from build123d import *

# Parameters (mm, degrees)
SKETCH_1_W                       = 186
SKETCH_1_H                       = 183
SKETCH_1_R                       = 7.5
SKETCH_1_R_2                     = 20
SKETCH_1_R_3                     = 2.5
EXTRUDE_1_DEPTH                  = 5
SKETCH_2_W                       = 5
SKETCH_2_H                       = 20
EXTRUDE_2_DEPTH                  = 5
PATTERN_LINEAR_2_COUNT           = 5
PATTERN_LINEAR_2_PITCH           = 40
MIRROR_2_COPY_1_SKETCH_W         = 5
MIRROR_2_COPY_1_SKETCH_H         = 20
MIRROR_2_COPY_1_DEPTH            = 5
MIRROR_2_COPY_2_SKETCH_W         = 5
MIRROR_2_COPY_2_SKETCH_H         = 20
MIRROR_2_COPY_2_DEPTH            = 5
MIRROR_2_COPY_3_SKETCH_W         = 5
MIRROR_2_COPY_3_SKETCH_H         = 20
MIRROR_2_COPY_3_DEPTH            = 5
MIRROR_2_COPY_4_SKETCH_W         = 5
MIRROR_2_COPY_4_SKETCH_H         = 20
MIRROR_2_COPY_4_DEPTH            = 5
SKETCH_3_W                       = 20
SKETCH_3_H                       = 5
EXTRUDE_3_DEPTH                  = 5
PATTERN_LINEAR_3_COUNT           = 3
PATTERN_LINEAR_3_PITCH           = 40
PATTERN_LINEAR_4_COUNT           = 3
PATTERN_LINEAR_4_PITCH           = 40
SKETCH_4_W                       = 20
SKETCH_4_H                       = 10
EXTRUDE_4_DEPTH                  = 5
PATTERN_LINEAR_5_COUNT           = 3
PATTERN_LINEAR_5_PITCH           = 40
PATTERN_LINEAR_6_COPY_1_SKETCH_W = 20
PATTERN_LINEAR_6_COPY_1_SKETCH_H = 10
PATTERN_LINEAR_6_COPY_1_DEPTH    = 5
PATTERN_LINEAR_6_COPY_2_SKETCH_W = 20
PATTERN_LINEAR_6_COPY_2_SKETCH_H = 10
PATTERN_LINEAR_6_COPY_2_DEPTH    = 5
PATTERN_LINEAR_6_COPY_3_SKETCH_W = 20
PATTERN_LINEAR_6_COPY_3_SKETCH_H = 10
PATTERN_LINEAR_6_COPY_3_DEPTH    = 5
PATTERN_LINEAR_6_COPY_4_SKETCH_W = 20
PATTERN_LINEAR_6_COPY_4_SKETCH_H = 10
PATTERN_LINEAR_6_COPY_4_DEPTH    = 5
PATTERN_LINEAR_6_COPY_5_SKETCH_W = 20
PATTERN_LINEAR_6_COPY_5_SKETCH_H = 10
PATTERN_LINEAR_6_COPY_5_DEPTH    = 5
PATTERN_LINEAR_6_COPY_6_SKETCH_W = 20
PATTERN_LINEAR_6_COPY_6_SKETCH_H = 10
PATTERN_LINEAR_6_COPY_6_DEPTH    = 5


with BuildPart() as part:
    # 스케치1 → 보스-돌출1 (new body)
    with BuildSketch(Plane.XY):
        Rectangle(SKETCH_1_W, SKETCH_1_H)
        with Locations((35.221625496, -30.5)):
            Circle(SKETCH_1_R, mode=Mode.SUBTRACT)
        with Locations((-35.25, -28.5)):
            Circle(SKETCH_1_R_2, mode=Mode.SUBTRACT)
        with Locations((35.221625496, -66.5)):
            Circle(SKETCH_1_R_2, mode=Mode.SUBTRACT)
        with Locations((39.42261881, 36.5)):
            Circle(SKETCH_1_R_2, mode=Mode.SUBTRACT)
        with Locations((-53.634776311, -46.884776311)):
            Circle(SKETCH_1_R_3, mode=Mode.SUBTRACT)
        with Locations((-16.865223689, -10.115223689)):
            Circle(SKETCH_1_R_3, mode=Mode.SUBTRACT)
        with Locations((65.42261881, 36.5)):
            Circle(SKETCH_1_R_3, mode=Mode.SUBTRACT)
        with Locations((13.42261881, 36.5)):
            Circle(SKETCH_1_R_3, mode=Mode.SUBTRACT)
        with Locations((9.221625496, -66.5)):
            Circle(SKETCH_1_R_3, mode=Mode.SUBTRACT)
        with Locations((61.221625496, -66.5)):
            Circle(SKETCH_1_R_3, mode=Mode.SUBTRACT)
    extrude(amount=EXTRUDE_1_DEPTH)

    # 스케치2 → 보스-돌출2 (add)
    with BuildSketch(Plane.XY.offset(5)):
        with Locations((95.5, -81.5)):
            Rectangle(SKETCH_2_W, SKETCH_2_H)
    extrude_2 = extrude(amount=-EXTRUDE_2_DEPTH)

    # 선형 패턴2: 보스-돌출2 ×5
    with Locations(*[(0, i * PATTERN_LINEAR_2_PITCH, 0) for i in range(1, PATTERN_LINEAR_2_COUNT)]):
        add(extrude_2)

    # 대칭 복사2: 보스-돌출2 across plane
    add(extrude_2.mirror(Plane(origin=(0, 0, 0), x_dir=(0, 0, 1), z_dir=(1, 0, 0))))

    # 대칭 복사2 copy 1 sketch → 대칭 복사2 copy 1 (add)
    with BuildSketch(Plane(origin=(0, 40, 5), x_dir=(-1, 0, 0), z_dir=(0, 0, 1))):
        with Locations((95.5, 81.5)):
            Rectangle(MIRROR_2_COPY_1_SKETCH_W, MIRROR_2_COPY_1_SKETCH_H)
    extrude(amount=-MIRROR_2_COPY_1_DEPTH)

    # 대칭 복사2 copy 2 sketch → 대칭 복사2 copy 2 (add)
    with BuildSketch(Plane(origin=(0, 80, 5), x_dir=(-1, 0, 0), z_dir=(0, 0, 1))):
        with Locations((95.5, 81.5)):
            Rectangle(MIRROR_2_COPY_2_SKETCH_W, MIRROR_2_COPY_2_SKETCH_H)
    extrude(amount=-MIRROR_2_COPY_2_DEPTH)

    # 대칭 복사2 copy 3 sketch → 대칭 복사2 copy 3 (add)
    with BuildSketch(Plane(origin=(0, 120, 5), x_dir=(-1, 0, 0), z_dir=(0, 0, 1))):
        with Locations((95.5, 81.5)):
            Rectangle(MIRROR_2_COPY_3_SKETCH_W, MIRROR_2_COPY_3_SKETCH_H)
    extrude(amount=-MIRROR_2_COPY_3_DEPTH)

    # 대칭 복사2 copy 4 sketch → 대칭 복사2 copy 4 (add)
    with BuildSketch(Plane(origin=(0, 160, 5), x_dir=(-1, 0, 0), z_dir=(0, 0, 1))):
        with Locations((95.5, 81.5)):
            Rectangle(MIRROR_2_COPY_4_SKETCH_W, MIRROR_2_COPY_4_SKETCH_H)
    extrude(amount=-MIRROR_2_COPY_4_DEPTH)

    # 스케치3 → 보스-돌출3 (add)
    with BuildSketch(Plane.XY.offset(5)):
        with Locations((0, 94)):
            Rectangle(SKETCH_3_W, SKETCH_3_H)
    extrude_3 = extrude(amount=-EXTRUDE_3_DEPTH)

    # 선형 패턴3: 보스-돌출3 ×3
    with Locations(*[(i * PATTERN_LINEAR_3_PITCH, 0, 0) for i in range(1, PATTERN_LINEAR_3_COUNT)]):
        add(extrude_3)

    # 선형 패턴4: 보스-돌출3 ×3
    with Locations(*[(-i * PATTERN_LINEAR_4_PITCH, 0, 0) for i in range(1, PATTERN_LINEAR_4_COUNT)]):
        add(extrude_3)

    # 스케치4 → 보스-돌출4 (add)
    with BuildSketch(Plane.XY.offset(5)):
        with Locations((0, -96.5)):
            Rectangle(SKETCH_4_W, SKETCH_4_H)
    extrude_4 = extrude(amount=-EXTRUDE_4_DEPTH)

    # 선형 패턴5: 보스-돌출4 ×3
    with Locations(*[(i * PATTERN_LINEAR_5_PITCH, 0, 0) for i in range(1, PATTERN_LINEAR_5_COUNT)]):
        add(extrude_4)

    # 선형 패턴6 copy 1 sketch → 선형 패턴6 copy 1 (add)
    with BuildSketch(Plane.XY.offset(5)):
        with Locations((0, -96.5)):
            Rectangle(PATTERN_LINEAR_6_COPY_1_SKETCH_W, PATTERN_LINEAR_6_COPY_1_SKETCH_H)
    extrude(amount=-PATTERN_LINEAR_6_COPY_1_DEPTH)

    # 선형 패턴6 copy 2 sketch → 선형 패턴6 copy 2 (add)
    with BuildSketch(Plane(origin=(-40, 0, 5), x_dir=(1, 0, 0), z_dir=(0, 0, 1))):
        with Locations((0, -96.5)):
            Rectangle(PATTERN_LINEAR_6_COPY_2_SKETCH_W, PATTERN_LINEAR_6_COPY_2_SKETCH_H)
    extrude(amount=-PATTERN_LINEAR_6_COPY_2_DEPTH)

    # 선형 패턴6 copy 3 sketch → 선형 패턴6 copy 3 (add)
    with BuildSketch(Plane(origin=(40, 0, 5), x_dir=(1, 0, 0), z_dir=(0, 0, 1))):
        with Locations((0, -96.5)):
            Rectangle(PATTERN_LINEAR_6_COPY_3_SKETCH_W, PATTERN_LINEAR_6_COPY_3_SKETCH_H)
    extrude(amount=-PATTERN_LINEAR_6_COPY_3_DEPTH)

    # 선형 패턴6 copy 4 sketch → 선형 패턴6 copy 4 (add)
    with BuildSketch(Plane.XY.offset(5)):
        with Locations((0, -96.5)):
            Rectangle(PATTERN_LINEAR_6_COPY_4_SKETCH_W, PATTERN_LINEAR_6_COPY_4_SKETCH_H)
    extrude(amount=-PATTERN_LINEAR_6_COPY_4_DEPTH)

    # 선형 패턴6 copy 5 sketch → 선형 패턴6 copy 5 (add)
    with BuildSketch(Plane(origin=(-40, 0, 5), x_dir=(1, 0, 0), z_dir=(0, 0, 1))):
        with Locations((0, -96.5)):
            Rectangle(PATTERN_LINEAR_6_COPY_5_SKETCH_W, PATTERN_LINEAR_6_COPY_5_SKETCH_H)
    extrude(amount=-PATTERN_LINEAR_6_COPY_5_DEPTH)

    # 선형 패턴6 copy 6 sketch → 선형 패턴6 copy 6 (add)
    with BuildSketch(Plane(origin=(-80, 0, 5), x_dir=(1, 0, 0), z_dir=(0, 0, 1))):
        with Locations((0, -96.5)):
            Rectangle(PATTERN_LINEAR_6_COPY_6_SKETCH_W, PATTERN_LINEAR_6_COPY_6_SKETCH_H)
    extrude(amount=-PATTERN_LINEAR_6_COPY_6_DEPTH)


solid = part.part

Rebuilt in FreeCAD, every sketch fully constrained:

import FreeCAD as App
import Part
import Sketcher

doc = App.newDocument("Part")
body = doc.addObject("PartDesign::Body", "Body")

sketch1 = body.newObject("Sketcher::SketchObject", "Sketch")
sketch1.AttachmentSupport = (doc.getObject("XY_Plane"), [""])
sketch1.MapMode = "FlatFace"
sketch1.addGeometry([
    Part.LineSegment(App.Vector(-93, 91.5, 0), App.Vector(-93, -91.5, 0)),
    Part.LineSegment(App.Vector(-93, -91.5, 0), App.Vector(93, -91.5, 0)),
    Part.LineSegment(App.Vector(93, -91.5, 0), App.Vector(93, 91.5, 0)),
    Part.LineSegment(App.Vector(93, 91.5, 0), App.Vector(-93, 91.5, 0)),
    Part.Circle(App.Vector(-53.6, -46.9, 0), App.Vector(0, 0, 1), 2.5),
    Part.Circle(App.Vector(-35.2, -28.5, 0), App.Vector(0, 0, 1), 20),
    Part.Circle(App.Vector(9.2, -66.5, 0), App.Vector(0, 0, 1), 2.5),
    Part.Circle(App.Vector(35.2, -66.5, 0), App.Vector(0, 0, 1), 20),
    Part.Circle(App.Vector(61.2, -66.5, 0), App.Vector(0, 0, 1), 2.5),
    Part.Circle(App.Vector(35.2, -30.5, 0), App.Vector(0, 0, 1), 7.5),
    Part.Circle(App.Vector(-16.9, -10.1, 0), App.Vector(0, 0, 1), 2.5),
    Part.Circle(App.Vector(13.4, 36.5, 0), App.Vector(0, 0, 1), 2.5),
    Part.Circle(App.Vector(39.4, 36.5, 0), App.Vector(0, 0, 1), 20),
    Part.Circle(App.Vector(65.4, 36.5, 0), App.Vector(0, 0, 1), 2.5),
], False)
sketch1.addConstraint([
    Sketcher.Constraint("Coincident", 0, 2, 1, 1),
    Sketcher.Constraint("Coincident", 1, 2, 2, 1),
    Sketcher.Constraint("Coincident", 2, 2, 3, 1),
    Sketcher.Constraint("Coincident", 3, 2, 0, 1),
    Sketcher.Constraint("Vertical", 0),
    Sketcher.Constraint("Horizontal", 1),
    Sketcher.Constraint("Vertical", 2),
    Sketcher.Constraint("Horizontal", 3),
    Sketcher.Constraint("Equal", 4, 6),
    Sketcher.Constraint("Equal", 5, 7),
    Sketcher.Constraint("Equal", 6, 8),
    Sketcher.Constraint("Equal", 8, 10),
    Sketcher.Constraint("Equal", 10, 11),
    Sketcher.Constraint("Equal", 7, 12),
    Sketcher.Constraint("Equal", 11, 13),
    Sketcher.Constraint("Symmetric", 0, 2, 2, 2, -1, 1),
    Sketcher.Constraint("Horizontal", 6, 3, 7, 3),
    Sketcher.Constraint("Horizontal", 7, 3, 8, 3),
    Sketcher.Constraint("Horizontal", 11, 3, 12, 3),
    Sketcher.Constraint("Horizontal", 12, 3, 13, 3),
    Sketcher.Constraint("Vertical", 7, 3, 9, 3),
    Sketcher.Constraint("Diameter", 4, 5.0),
    Sketcher.Constraint("Diameter", 5, 40.0),
    Sketcher.Constraint("Diameter", 9, 15.0),
    Sketcher.Constraint("DistanceX", 1, 1, 1, 2, 186.0),
    Sketcher.Constraint("DistanceY", 0, 2, 0, 1, 183.0),
    Sketcher.Constraint("DistanceY", 6, 3, 5, 3, 38.0),
    Sketcher.Constraint("DistanceX", 6, 3, 7, 3, 26.0),
    Sketcher.Constraint("DistanceX", 7, 3, 8, 3, 26.0),
    Sketcher.Constraint("DistanceY", 7, 3, 9, 3, 36.0),
    Sketcher.Constraint("DistanceY", 9, 3, 11, 3, 67.0),
    Sketcher.Constraint("DistanceX", 11, 3, 12, 3, 26.0),
    Sketcher.Constraint("DistanceX", 12, 3, 13, 3, 26.0),
    Sketcher.Constraint("DistanceY", 0, 2, 5, 3, 63.0),
    Sketcher.Constraint("DistanceX", 5, 3, -1, 1, 35.25),
    Sketcher.Constraint("DistanceX", 4, 3, 6, 3, 62.856402),
    Sketcher.Constraint("DistanceX", -1, 1, 11, 3, 13.422619),
    Sketcher.Constraint("DistanceX", 10, 3, 9, 3, 52.086849),
    Sketcher.Constraint("DistanceX", 4, 3, -1, 1, 53.634776),
    Sketcher.Constraint("DistanceY", 4, 3, -1, 1, 46.884776),
    Sketcher.Constraint("DistanceY", 10, 3, -1, 1, 10.115224),
])
pad1 = body.newObject("PartDesign::Pad", "Pad")
pad1.Profile = sketch1
pad1.Length = 5

sketch2 = body.newObject("Sketcher::SketchObject", "Sketch001")
sketch2.AttachmentSupport = (doc.getObject("XY_Plane"), [""])
sketch2.MapMode = "FlatFace"
sketch2.AttachmentOffset = App.Placement(App.Vector(0, 0, 5), App.Rotation())
sketch2.addGeometry([
    Part.LineSegment(App.Vector(93, -72, 0), App.Vector(93, -92, 0)),
    Part.LineSegment(App.Vector(93, -92, 0), App.Vector(98, -92, 0)),
    Part.LineSegment(App.Vector(98, -92, 0), App.Vector(98, -72, 0)),
    Part.LineSegment(App.Vector(98, -72, 0), App.Vector(93, -72, 0)),
], False)
sketch2.addConstraint([
    Sketcher.Constraint("Coincident", 0, 2, 1, 1),
    Sketcher.Constraint("Coincident", 1, 2, 2, 1),
    Sketcher.Constraint("Coincident", 2, 2, 3, 1),
    Sketcher.Constraint("Coincident", 3, 2, 0, 1),
    Sketcher.Constraint("Vertical", 0),
    Sketcher.Constraint("Horizontal", 1),
    Sketcher.Constraint("Vertical", 2),
    Sketcher.Constraint("Horizontal", 3),
    Sketcher.Constraint("DistanceX", 1, 1, 1, 2, 5.0),
    Sketcher.Constraint("DistanceY", 0, 2, 0, 1, 20.0),
    Sketcher.Constraint("DistanceX", -1, 1, 0, 2, 93.0),
    Sketcher.Constraint("DistanceY", 0, 2, -1, 1, 91.5),
])
pad2 = body.newObject("PartDesign::Pad", "Pad001")
pad2.Profile = sketch2
pad2.Length = 5
pad2.Reversed = True
doc.recompute()

linearpattern = body.newObject("PartDesign::LinearPattern", "LinearPattern")
linearpattern.Originals = [pad2]
linearpattern.Direction = (doc.getObject("Y_Axis"), [""])
linearpattern.Mode = "offset"
linearpattern.Offset = 40
linearpattern.Occurrences = 5
body.Tip = linearpattern
doc.recompute()

mirrored = body.newObject("PartDesign::Mirrored", "Mirrored")
mirrored.Originals = [pad2]
mirrored.MirrorPlane = (doc.getObject("YZ_Plane"), [""])
body.Tip = mirrored

sketch3 = body.newObject("Sketcher::SketchObject", "Sketch002")
sketch3.AttachmentSupport = (doc.getObject("XY_Plane"), [""])
sketch3.MapMode = "FlatFace"
sketch3.AttachmentOffset = App.Placement(App.Vector(0, 0, 5), App.Rotation())
sketch3.addGeometry([
    Part.LineSegment(App.Vector(-93, -52, 0), App.Vector(-93, -32, 0)),
    Part.LineSegment(App.Vector(-93, -32, 0), App.Vector(-98, -32, 0)),
    Part.LineSegment(App.Vector(-98, -32, 0), App.Vector(-98, -52, 0)),
    Part.LineSegment(App.Vector(-98, -52, 0), App.Vector(-93, -52, 0)),
], False)
sketch3.addConstraint([
    Sketcher.Constraint("Coincident", 0, 2, 1, 1),
    Sketcher.Constraint("Coincident", 1, 2, 2, 1),
    Sketcher.Constraint("Coincident", 2, 2, 3, 1),
    Sketcher.Constraint("Coincident", 3, 2, 0, 1),
    Sketcher.Constraint("Vertical", 0),
    Sketcher.Constraint("Horizontal", 1),
    Sketcher.Constraint("Vertical", 2),
    Sketcher.Constraint("Horizontal", 3),
    Sketcher.Constraint("DistanceX", 1, 2, 1, 1, 5.0),
    Sketcher.Constraint("DistanceY", 0, 1, 0, 2, 20.0),
    Sketcher.Constraint("DistanceX", 0, 2, -1, 1, 93.0),
    Sketcher.Constraint("DistanceY", 0, 2, -1, 1, 31.5),
])
pad3 = body.newObject("PartDesign::Pad", "Pad002")
pad3.Profile = sketch3
pad3.Length = 5
pad3.Reversed = True

sketch4 = body.newObject("Sketcher::SketchObject", "Sketch003")
sketch4.AttachmentSupport = (doc.getObject("XY_Plane"), [""])
sketch4.MapMode = "FlatFace"
sketch4.AttachmentOffset = App.Placement(App.Vector(0, 0, 5), App.Rotation())
sketch4.addGeometry([
    Part.LineSegment(App.Vector(-93, -12, 0), App.Vector(-93, 8, 0)),
    Part.LineSegment(App.Vector(-93, 8, 0), App.Vector(-98, 8, 0)),
    Part.LineSegment(App.Vector(-98, 8, 0), App.Vector(-98, -12, 0)),
    Part.LineSegment(App.Vector(-98, -12, 0), App.Vector(-93, -12, 0)),
], False)
sketch4.addConstraint([
    Sketcher.Constraint("Coincident", 0, 2, 1, 1),
    Sketcher.Constraint("Coincident", 1, 2, 2, 1),
    Sketcher.Constraint("Coincident", 2, 2, 3, 1),
    Sketcher.Constraint("Coincident", 3, 2, 0, 1),
    Sketcher.Constraint("Vertical", 0),
    Sketcher.Constraint("Horizontal", 1),
    Sketcher.Constraint("Vertical", 2),
    Sketcher.Constraint("Horizontal", 3),
    Sketcher.Constraint("DistanceX", 1, 2, 1, 1, 5.0),
    Sketcher.Constraint("DistanceY", 0, 1, 0, 2, 20.0),
    Sketcher.Constraint("DistanceX", 0, 2, -1, 1, 93.0),
    Sketcher.Constraint("DistanceY", -1, 1, 0, 2, 8.5),
])
pad4 = body.newObject("PartDesign::Pad", "Pad003")
pad4.Profile = sketch4
pad4.Length = 5
pad4.Reversed = True

sketch5 = body.newObject("Sketcher::SketchObject", "Sketch004")
sketch5.AttachmentSupport = (doc.getObject("XY_Plane"), [""])
sketch5.MapMode = "FlatFace"
sketch5.AttachmentOffset = App.Placement(App.Vector(0, 0, 5), App.Rotation())
sketch5.addGeometry([
    Part.LineSegment(App.Vector(-93, 28, 0), App.Vector(-93, 48, 0)),
    Part.LineSegment(App.Vector(-93, 48, 0), App.Vector(-98, 48, 0)),
    Part.LineSegment(App.Vector(-98, 48, 0), App.Vector(-98, 28, 0)),
    Part.LineSegment(App.Vector(-98, 28, 0), App.Vector(-93, 28, 0)),
], False)
sketch5.addConstraint([
    Sketcher.Constraint("Coincident", 0, 2, 1, 1),
    Sketcher.Constraint("Coincident", 1, 2, 2, 1),
    Sketcher.Constraint("Coincident", 2, 2, 3, 1),
    Sketcher.Constraint("Coincident", 3, 2, 0, 1),
    Sketcher.Constraint("Vertical", 0),
    Sketcher.Constraint("Horizontal", 1),
    Sketcher.Constraint("Vertical", 2),
    Sketcher.Constraint("Horizontal", 3),
    Sketcher.Constraint("DistanceX", 1, 2, 1, 1, 5.0),
    Sketcher.Constraint("DistanceY", 0, 1, 0, 2, 20.0),
    Sketcher.Constraint("DistanceX", 0, 2, -1, 1, 93.0),
    Sketcher.Constraint("DistanceY", -1, 1, 0, 2, 48.5),
])
pad5 = body.newObject("PartDesign::Pad", "Pad004")
pad5.Profile = sketch5
pad5.Length = 5
pad5.Reversed = True

sketch6 = body.newObject("Sketcher::SketchObject", "Sketch005")
sketch6.AttachmentSupport = (doc.getObject("XY_Plane"), [""])
sketch6.MapMode = "FlatFace"
sketch6.AttachmentOffset = App.Placement(App.Vector(0, 0, 5), App.Rotation())
sketch6.addGeometry([
    Part.LineSegment(App.Vector(-93, 68, 0), App.Vector(-93, 88, 0)),
    Part.LineSegment(App.Vector(-93, 88, 0), App.Vector(-98, 88, 0)),
    Part.LineSegment(App.Vector(-98, 88, 0), App.Vector(-98, 68, 0)),
    Part.LineSegment(App.Vector(-98, 68, 0), App.Vector(-93, 68, 0)),
], False)
sketch6.addConstraint([
    Sketcher.Constraint("Coincident", 0, 2, 1, 1),
    Sketcher.Constraint("Coincident", 1, 2, 2, 1),
    Sketcher.Constraint("Coincident", 2, 2, 3, 1),
    Sketcher.Constraint("Coincident", 3, 2, 0, 1),
    Sketcher.Constraint("Vertical", 0),
    Sketcher.Constraint("Horizontal", 1),
    Sketcher.Constraint("Vertical", 2),
    Sketcher.Constraint("Horizontal", 3),
    Sketcher.Constraint("DistanceX", 1, 2, 1, 1, 5.0),
    Sketcher.Constraint("DistanceY", 0, 1, 0, 2, 20.0),
    Sketcher.Constraint("DistanceX", 0, 2, -1, 1, 93.0),
    Sketcher.Constraint("DistanceY", -1, 1, 0, 2, 88.5),
])
pad6 = body.newObject("PartDesign::Pad", "Pad005")
pad6.Profile = sketch6
pad6.Length = 5
pad6.Reversed = True

sketch7 = body.newObject("Sketcher::SketchObject", "Sketch006")
sketch7.AttachmentSupport = (doc.getObject("XY_Plane"), [""])
sketch7.MapMode = "FlatFace"
sketch7.AttachmentOffset = App.Placement(App.Vector(0, 0, 5), App.Rotation())
sketch7.addGeometry([
    Part.LineSegment(App.Vector(-10, 96, 0), App.Vector(-10, 92, 0)),
    Part.LineSegment(App.Vector(-10, 92, 0), App.Vector(10, 92, 0)),
    Part.LineSegment(App.Vector(10, 92, 0), App.Vector(10, 96, 0)),
    Part.LineSegment(App.Vector(10, 96, 0), App.Vector(-10, 96, 0)),
], False)
sketch7.addConstraint([
    Sketcher.Constraint("Coincident", 0, 2, 1, 1),
    Sketcher.Constraint("Coincident", 1, 2, 2, 1),
    Sketcher.Constraint("Coincident", 2, 2, 3, 1),
    Sketcher.Constraint("Coincident", 3, 2, 0, 1),
    Sketcher.Constraint("Vertical", 0),
    Sketcher.Constraint("Horizontal", 1),
    Sketcher.Constraint("Vertical", 2),
    Sketcher.Constraint("Horizontal", 3),
    Sketcher.Constraint("DistanceX", 1, 1, 1, 2, 20.0),
    Sketcher.Constraint("DistanceY", 0, 2, 0, 1, 5.0),
    Sketcher.Constraint("DistanceX", 0, 2, -1, 1, 10.0),
    Sketcher.Constraint("DistanceY", -1, 1, 0, 2, 91.5),
])
pad7 = body.newObject("PartDesign::Pad", "Pad006")
pad7.Profile = sketch7
pad7.Length = 5
pad7.Reversed = True
doc.recompute()

linearpattern2 = body.newObject("PartDesign::LinearPattern", "LinearPattern001")
linearpattern2.Originals = [pad7]
linearpattern2.Direction = (doc.getObject("X_Axis"), [""])
linearpattern2.Mode = "offset"
linearpattern2.Offset = 40
linearpattern2.Occurrences = 3
body.Tip = linearpattern2
doc.recompute()

linearpattern3 = body.newObject("PartDesign::LinearPattern", "LinearPattern002")
linearpattern3.Originals = [pad7]
linearpattern3.Direction = (doc.getObject("X_Axis"), [""])
linearpattern3.Mode = "offset"
linearpattern3.Offset = 40
linearpattern3.Occurrences = 3
linearpattern3.Reversed = True
body.Tip = linearpattern3

sketch8 = body.newObject("Sketcher::SketchObject", "Sketch007")
sketch8.AttachmentSupport = (doc.getObject("XY_Plane"), [""])
sketch8.MapMode = "FlatFace"
sketch8.AttachmentOffset = App.Placement(App.Vector(0, 0, 5), App.Rotation())
sketch8.addGeometry([
    Part.LineSegment(App.Vector(-10, -92, 0), App.Vector(-10, -102, 0)),
    Part.LineSegment(App.Vector(-10, -102, 0), App.Vector(10, -102, 0)),
    Part.LineSegment(App.Vector(10, -102, 0), App.Vector(10, -92, 0)),
    Part.LineSegment(App.Vector(10, -92, 0), App.Vector(-10, -92, 0)),
], False)
sketch8.addConstraint([
    Sketcher.Constraint("Coincident", 0, 2, 1, 1),
    Sketcher.Constraint("Coincident", 1, 2, 2, 1),
    Sketcher.Constraint("Coincident", 2, 2, 3, 1),
    Sketcher.Constraint("Coincident", 3, 2, 0, 1),
    Sketcher.Constraint("Vertical", 0),
    Sketcher.Constraint("Horizontal", 1),
    Sketcher.Constraint("Vertical", 2),
    Sketcher.Constraint("Horizontal", 3),
    Sketcher.Constraint("DistanceX", 1, 1, 1, 2, 20.0),
    Sketcher.Constraint("DistanceY", 0, 2, 0, 1, 10.0),
    Sketcher.Constraint("DistanceX", 0, 2, -1, 1, 10.0),
    Sketcher.Constraint("DistanceY", 0, 2, -1, 1, 101.5),
])
pad8 = body.newObject("PartDesign::Pad", "Pad007")
pad8.Profile = sketch8
pad8.Length = 5
pad8.Reversed = True
doc.recompute()

linearpattern4 = body.newObject("PartDesign::LinearPattern", "LinearPattern003")
linearpattern4.Originals = [pad8]
linearpattern4.Direction = (doc.getObject("X_Axis"), [""])
linearpattern4.Mode = "offset"
linearpattern4.Offset = 40
linearpattern4.Occurrences = 3
body.Tip = linearpattern4

sketch9 = body.newObject("Sketcher::SketchObject", "Sketch008")
sketch9.AttachmentSupport = (doc.getObject("XY_Plane"), [""])
sketch9.MapMode = "FlatFace"
sketch9.AttachmentOffset = App.Placement(App.Vector(0, 0, 5), App.Rotation())
sketch9.addGeometry([
    Part.LineSegment(App.Vector(-10, -92, 0), App.Vector(-10, -102, 0)),
    Part.LineSegment(App.Vector(-10, -102, 0), App.Vector(10, -102, 0)),
    Part.LineSegment(App.Vector(10, -102, 0), App.Vector(10, -92, 0)),
    Part.LineSegment(App.Vector(10, -92, 0), App.Vector(-10, -92, 0)),
], False)
sketch9.addConstraint([
    Sketcher.Constraint("Coincident", 0, 2, 1, 1),
    Sketcher.Constraint("Coincident", 1, 2, 2, 1),
    Sketcher.Constraint("Coincident", 2, 2, 3, 1),
    Sketcher.Constraint("Coincident", 3, 2, 0, 1),
    Sketcher.Constraint("Vertical", 0),
    Sketcher.Constraint("Horizontal", 1),
    Sketcher.Constraint("Vertical", 2),
    Sketcher.Constraint("Horizontal", 3),
    Sketcher.Constraint("DistanceX", 1, 1, 1, 2, 20.0),
    Sketcher.Constraint("DistanceY", 0, 2, 0, 1, 10.0),
    Sketcher.Constraint("DistanceX", 0, 2, -1, 1, 10.0),
    Sketcher.Constraint("DistanceY", 0, 2, -1, 1, 101.5),
])
pad9 = body.newObject("PartDesign::Pad", "Pad008")
pad9.Profile = sketch9
pad9.Length = 5
pad9.Reversed = True

sketch10 = body.newObject("Sketcher::SketchObject", "Sketch009")
sketch10.AttachmentSupport = (doc.getObject("XY_Plane"), [""])
sketch10.MapMode = "FlatFace"
sketch10.AttachmentOffset = App.Placement(App.Vector(0, 0, 5), App.Rotation())
sketch10.addGeometry([
    Part.LineSegment(App.Vector(-50, -92, 0), App.Vector(-50, -102, 0)),
    Part.LineSegment(App.Vector(-50, -102, 0), App.Vector(-30, -102, 0)),
    Part.LineSegment(App.Vector(-30, -102, 0), App.Vector(-30, -92, 0)),
    Part.LineSegment(App.Vector(-30, -92, 0), App.Vector(-50, -92, 0)),
], False)
sketch10.addConstraint([
    Sketcher.Constraint("Coincident", 0, 2, 1, 1),
    Sketcher.Constraint("Coincident", 1, 2, 2, 1),
    Sketcher.Constraint("Coincident", 2, 2, 3, 1),
    Sketcher.Constraint("Coincident", 3, 2, 0, 1),
    Sketcher.Constraint("Vertical", 0),
    Sketcher.Constraint("Horizontal", 1),
    Sketcher.Constraint("Vertical", 2),
    Sketcher.Constraint("Horizontal", 3),
    Sketcher.Constraint("DistanceX", 1, 1, 1, 2, 20.0),
    Sketcher.Constraint("DistanceY", 0, 2, 0, 1, 10.0),
    Sketcher.Constraint("DistanceX", 0, 2, -1, 1, 50.0),
    Sketcher.Constraint("DistanceY", 0, 2, -1, 1, 101.5),
])
pad10 = body.newObject("PartDesign::Pad", "Pad009")
pad10.Profile = sketch10
pad10.Length = 5
pad10.Reversed = True

sketch11 = body.newObject("Sketcher::SketchObject", "Sketch010")
sketch11.AttachmentSupport = (doc.getObject("XY_Plane"), [""])
sketch11.MapMode = "FlatFace"
sketch11.AttachmentOffset = App.Placement(App.Vector(0, 0, 5), App.Rotation())
sketch11.addGeometry([
    Part.LineSegment(App.Vector(30, -92, 0), App.Vector(30, -102, 0)),
    Part.LineSegment(App.Vector(30, -102, 0), App.Vector(50, -102, 0)),
    Part.LineSegment(App.Vector(50, -102, 0), App.Vector(50, -92, 0)),
    Part.LineSegment(App.Vector(50, -92, 0), App.Vector(30, -92, 0)),
], False)
sketch11.addConstraint([
    Sketcher.Constraint("Coincident", 0, 2, 1, 1),
    Sketcher.Constraint("Coincident", 1, 2, 2, 1),
    Sketcher.Constraint("Coincident", 2, 2, 3, 1),
    Sketcher.Constraint("Coincident", 3, 2, 0, 1),
    Sketcher.Constraint("Vertical", 0),
    Sketcher.Constraint("Horizontal", 1),
    Sketcher.Constraint("Vertical", 2),
    Sketcher.Constraint("Horizontal", 3),
    Sketcher.Constraint("DistanceX", 1, 1, 1, 2, 20.0),
    Sketcher.Constraint("DistanceY", 0, 2, 0, 1, 10.0),
    Sketcher.Constraint("DistanceX", -1, 1, 0, 2, 30.0),
    Sketcher.Constraint("DistanceY", 0, 2, -1, 1, 101.5),
])
pad11 = body.newObject("PartDesign::Pad", "Pad010")
pad11.Profile = sketch11
pad11.Length = 5
pad11.Reversed = True

sketch12 = body.newObject("Sketcher::SketchObject", "Sketch011")
sketch12.AttachmentSupport = (doc.getObject("XY_Plane"), [""])
sketch12.MapMode = "FlatFace"
sketch12.AttachmentOffset = App.Placement(App.Vector(0, 0, 5), App.Rotation())
sketch12.addGeometry([
    Part.LineSegment(App.Vector(-10, -92, 0), App.Vector(-10, -102, 0)),
    Part.LineSegment(App.Vector(-10, -102, 0), App.Vector(10, -102, 0)),
    Part.LineSegment(App.Vector(10, -102, 0), App.Vector(10, -92, 0)),
    Part.LineSegment(App.Vector(10, -92, 0), App.Vector(-10, -92, 0)),
], False)
sketch12.addConstraint([
    Sketcher.Constraint("Coincident", 0, 2, 1, 1),
    Sketcher.Constraint("Coincident", 1, 2, 2, 1),
    Sketcher.Constraint("Coincident", 2, 2, 3, 1),
    Sketcher.Constraint("Coincident", 3, 2, 0, 1),
    Sketcher.Constraint("Vertical", 0),
    Sketcher.Constraint("Horizontal", 1),
    Sketcher.Constraint("Vertical", 2),
    Sketcher.Constraint("Horizontal", 3),
    Sketcher.Constraint("DistanceX", 1, 1, 1, 2, 20.0),
    Sketcher.Constraint("DistanceY", 0, 2, 0, 1, 10.0),
    Sketcher.Constraint("DistanceX", 0, 2, -1, 1, 10.0),
    Sketcher.Constraint("DistanceY", 0, 2, -1, 1, 101.5),
])
pad12 = body.newObject("PartDesign::Pad", "Pad011")
pad12.Profile = sketch12
pad12.Length = 5
pad12.Reversed = True

sketch13 = body.newObject("Sketcher::SketchObject", "Sketch012")
sketch13.AttachmentSupport = (doc.getObject("XY_Plane"), [""])
sketch13.MapMode = "FlatFace"
sketch13.AttachmentOffset = App.Placement(App.Vector(0, 0, 5), App.Rotation())
sketch13.addGeometry([
    Part.LineSegment(App.Vector(-50, -92, 0), App.Vector(-50, -102, 0)),
    Part.LineSegment(App.Vector(-50, -102, 0), App.Vector(-30, -102, 0)),
    Part.LineSegment(App.Vector(-30, -102, 0), App.Vector(-30, -92, 0)),
    Part.LineSegment(App.Vector(-30, -92, 0), App.Vector(-50, -92, 0)),
], False)
sketch13.addConstraint([
    Sketcher.Constraint("Coincident", 0, 2, 1, 1),
    Sketcher.Constraint("Coincident", 1, 2, 2, 1),
    Sketcher.Constraint("Coincident", 2, 2, 3, 1),
    Sketcher.Constraint("Coincident", 3, 2, 0, 1),
    Sketcher.Constraint("Vertical", 0),
    Sketcher.Constraint("Horizontal", 1),
    Sketcher.Constraint("Vertical", 2),
    Sketcher.Constraint("Horizontal", 3),
    Sketcher.Constraint("DistanceX", 1, 1, 1, 2, 20.0),
    Sketcher.Constraint("DistanceY", 0, 2, 0, 1, 10.0),
    Sketcher.Constraint("DistanceX", 0, 2, -1, 1, 50.0),
    Sketcher.Constraint("DistanceY", 0, 2, -1, 1, 101.5),
])
pad13 = body.newObject("PartDesign::Pad", "Pad012")
pad13.Profile = sketch13
pad13.Length = 5
pad13.Reversed = True

sketch14 = body.newObject("Sketcher::SketchObject", "Sketch013")
sketch14.AttachmentSupport = (doc.getObject("XY_Plane"), [""])
sketch14.MapMode = "FlatFace"
sketch14.AttachmentOffset = App.Placement(App.Vector(0, 0, 5), App.Rotation())
sketch14.addGeometry([
    Part.LineSegment(App.Vector(-90, -92, 0), App.Vector(-90, -102, 0)),
    Part.LineSegment(App.Vector(-90, -102, 0), App.Vector(-70, -102, 0)),
    Part.LineSegment(App.Vector(-70, -102, 0), App.Vector(-70, -92, 0)),
    Part.LineSegment(App.Vector(-70, -92, 0), App.Vector(-90, -92, 0)),
], False)
sketch14.addConstraint([
    Sketcher.Constraint("Coincident", 0, 2, 1, 1),
    Sketcher.Constraint("Coincident", 1, 2, 2, 1),
    Sketcher.Constraint("Coincident", 2, 2, 3, 1),
    Sketcher.Constraint("Coincident", 3, 2, 0, 1),
    Sketcher.Constraint("Vertical", 0),
    Sketcher.Constraint("Horizontal", 1),
    Sketcher.Constraint("Vertical", 2),
    Sketcher.Constraint("Horizontal", 3),
    Sketcher.Constraint("DistanceX", 1, 1, 1, 2, 20.0),
    Sketcher.Constraint("DistanceY", 0, 2, 0, 1, 10.0),
    Sketcher.Constraint("DistanceX", 0, 2, -1, 1, 90.0),
    Sketcher.Constraint("DistanceY", 0, 2, -1, 1, 101.5),
])
pad14 = body.newObject("PartDesign::Pad", "Pad013")
pad14.Profile = sketch14
pad14.Length = 5
pad14.Reversed = True

doc.recompute()
